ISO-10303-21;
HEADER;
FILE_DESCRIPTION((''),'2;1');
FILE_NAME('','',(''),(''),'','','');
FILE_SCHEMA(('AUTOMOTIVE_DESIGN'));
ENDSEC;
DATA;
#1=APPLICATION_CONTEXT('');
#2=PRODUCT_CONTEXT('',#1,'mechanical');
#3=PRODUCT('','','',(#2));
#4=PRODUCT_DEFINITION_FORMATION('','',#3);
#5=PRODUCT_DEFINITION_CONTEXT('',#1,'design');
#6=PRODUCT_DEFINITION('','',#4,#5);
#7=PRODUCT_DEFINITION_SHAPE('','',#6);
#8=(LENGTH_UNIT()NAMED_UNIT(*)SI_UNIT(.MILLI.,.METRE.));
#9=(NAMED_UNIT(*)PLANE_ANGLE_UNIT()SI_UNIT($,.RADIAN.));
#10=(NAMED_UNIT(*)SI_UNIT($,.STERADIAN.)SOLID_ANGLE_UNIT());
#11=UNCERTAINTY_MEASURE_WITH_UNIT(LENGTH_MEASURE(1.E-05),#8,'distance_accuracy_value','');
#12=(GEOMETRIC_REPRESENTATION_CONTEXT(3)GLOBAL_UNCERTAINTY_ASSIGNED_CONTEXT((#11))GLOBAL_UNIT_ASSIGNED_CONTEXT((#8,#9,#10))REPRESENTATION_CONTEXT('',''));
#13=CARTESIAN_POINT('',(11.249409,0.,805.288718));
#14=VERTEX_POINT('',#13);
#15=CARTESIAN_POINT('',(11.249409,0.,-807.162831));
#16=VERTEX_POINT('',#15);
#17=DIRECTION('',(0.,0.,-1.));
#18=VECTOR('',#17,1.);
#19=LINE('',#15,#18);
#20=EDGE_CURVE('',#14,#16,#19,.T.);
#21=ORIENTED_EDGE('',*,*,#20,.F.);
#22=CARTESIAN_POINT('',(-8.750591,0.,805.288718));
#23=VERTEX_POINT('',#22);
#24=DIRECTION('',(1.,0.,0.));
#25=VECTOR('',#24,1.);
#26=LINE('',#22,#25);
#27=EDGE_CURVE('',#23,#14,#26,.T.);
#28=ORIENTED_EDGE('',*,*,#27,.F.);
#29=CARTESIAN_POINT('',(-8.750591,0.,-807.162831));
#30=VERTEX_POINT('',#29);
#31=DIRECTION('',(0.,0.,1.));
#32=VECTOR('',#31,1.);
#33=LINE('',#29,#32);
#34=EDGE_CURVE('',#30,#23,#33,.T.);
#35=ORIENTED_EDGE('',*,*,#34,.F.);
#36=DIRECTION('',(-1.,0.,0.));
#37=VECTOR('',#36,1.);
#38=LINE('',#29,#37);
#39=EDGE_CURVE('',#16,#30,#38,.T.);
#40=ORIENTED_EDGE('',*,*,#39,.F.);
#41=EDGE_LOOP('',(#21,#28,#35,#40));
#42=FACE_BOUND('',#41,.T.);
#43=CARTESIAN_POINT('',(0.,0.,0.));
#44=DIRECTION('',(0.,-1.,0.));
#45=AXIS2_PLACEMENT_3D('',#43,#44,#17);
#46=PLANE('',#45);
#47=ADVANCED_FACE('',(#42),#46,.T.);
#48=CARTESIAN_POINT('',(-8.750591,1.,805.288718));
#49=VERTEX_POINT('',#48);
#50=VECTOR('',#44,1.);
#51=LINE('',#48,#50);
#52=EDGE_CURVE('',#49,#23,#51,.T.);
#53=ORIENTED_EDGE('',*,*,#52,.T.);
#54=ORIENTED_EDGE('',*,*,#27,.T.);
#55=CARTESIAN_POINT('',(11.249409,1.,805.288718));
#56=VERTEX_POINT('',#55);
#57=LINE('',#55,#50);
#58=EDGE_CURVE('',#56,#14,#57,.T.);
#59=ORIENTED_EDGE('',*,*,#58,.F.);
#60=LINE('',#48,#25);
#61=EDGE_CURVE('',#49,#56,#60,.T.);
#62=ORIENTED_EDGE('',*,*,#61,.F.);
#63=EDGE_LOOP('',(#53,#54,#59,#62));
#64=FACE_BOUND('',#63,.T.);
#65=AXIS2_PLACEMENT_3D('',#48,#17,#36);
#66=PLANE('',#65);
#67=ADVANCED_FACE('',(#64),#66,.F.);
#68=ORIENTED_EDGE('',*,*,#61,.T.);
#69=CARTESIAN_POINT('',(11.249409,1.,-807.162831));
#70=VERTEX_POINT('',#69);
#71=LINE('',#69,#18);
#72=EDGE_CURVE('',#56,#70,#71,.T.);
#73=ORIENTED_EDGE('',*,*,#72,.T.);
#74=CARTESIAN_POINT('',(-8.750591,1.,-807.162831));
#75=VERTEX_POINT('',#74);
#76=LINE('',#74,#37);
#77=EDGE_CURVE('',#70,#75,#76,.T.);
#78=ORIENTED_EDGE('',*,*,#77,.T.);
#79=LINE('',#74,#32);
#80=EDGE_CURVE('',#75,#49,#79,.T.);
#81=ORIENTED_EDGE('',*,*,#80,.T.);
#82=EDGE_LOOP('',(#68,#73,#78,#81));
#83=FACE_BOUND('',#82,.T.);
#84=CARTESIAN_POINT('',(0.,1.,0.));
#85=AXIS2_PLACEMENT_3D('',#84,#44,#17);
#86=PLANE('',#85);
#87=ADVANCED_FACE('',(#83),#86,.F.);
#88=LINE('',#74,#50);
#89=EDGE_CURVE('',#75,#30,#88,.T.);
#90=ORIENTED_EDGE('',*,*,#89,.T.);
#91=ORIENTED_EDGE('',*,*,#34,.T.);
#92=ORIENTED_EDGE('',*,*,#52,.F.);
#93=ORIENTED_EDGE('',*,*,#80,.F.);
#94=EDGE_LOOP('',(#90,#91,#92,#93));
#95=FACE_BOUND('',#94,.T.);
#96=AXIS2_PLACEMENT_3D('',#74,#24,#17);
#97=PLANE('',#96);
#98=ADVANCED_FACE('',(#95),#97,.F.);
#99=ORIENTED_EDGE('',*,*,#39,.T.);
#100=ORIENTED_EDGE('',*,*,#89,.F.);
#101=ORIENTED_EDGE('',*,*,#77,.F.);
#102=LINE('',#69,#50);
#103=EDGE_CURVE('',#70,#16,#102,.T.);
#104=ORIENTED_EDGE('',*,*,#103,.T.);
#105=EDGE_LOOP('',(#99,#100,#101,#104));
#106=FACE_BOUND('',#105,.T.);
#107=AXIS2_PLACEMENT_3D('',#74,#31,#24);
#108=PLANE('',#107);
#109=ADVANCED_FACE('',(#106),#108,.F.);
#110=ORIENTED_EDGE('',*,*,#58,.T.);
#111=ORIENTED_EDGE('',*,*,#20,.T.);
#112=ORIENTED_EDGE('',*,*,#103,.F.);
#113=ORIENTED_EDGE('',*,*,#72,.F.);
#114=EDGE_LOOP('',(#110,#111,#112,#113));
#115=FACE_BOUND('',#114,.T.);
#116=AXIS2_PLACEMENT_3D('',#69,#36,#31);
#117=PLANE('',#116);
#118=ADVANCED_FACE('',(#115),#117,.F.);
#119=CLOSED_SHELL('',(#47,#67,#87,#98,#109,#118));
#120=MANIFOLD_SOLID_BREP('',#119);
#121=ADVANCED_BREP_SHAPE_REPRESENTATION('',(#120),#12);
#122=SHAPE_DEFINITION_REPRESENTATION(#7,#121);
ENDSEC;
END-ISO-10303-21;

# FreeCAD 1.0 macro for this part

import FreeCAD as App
import Part
import Sketcher
from FreeCAD import Vector

doc = App.newDocument("Part")
body = doc.addObject("PartDesign::Body", "Body")

# Sketch on XZ plane
sketch1 = body.newObject("Sketcher::SketchObject", "Sketch")
sketch1.AttachmentSupport = (doc.getObject("XZ_Plane"), [""])
sketch1.MapMode = "FlatFace"
sketch1.addGeometry([
    Part.LineSegment(Vector(-8.750591, -807.162831, 0), Vector(-8.750591, 805.288718, 0)),
    Part.LineSegment(Vector(-8.750591, 805.288718, 0), Vector(11.249409, 805.288718, 0)),
    Part.LineSegment(Vector(11.249409, 805.288718, 0), Vector(11.249409, -807.162831, 0)),
    Part.LineSegment(Vector(11.249409, -807.162831, 0), Vector(-8.750591, -807.162831, 0)),
], False)
sketch1.addConstraint([
    Sketcher.Constraint("Coincident", 0, 2, 1, 1),
    Sketcher.Constraint("Coincident", 1, 2, 2, 1),
    Sketcher.Constraint("Coincident", 2, 2, 3, 1),
    Sketcher.Constraint("Coincident", 3, 2, 0, 1),
    Sketcher.Constraint("Vertical", 0),
    Sketcher.Constraint("Horizontal", 1),
    Sketcher.Constraint("Vertical", 2),
    Sketcher.Constraint("Horizontal", 3),
    Sketcher.Constraint("DistanceX", 1, 1, 1, 2, 20.0),
    Sketcher.Constraint("DistanceY", 0, 1, 0, 2, 1612.45155),
    Sketcher.Constraint("DistanceX", 0, 2, -1, 1, 8.750591),
    Sketcher.Constraint("DistanceY", -1, 1, 0, 2, 805.288718),
])
pad1 = body.newObject("PartDesign::Pad", "Pad")
pad1.Profile = sketch1
pad1.Length = 1
pad1.Reversed = True

doc.recompute()
